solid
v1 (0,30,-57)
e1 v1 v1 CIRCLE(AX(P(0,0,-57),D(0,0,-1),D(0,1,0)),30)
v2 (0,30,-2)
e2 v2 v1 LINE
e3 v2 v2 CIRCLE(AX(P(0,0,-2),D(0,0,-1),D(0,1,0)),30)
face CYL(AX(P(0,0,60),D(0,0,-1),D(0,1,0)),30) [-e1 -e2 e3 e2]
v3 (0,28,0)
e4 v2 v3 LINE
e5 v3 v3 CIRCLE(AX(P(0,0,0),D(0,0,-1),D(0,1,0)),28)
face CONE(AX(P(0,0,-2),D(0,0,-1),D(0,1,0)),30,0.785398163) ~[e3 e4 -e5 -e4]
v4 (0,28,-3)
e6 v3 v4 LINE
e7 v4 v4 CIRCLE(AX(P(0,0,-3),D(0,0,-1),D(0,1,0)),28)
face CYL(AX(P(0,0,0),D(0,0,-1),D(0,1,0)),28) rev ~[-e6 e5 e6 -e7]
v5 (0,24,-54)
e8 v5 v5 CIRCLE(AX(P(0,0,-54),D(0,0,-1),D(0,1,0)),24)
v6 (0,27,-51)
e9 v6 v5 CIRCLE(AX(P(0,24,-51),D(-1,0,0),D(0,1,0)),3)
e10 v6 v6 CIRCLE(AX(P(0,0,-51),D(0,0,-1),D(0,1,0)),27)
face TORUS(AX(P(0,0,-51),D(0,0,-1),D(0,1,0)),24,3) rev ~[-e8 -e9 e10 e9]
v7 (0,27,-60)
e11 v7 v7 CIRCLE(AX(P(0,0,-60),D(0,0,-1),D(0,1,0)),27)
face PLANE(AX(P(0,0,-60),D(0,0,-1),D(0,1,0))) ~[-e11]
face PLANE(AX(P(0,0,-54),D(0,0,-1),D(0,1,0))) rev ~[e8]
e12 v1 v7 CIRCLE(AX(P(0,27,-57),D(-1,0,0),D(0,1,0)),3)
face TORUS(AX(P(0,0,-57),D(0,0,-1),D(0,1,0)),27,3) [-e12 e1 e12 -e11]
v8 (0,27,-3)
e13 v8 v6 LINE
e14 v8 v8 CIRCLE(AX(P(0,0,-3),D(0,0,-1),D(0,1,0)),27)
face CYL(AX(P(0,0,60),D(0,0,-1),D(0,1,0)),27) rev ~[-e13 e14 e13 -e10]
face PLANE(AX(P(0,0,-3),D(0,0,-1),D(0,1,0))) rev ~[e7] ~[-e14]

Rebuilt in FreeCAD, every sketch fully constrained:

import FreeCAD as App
import Part
import Sketcher
Q = App.Units.Quantity


def edges_at(feature, points):
    """Names of the edges that pass closest to the given points."""
    edges = feature.Shape.Edges
    near = lambda p: min(range(len(edges)), key=lambda i: edges[i].distToShape(Part.Vertex(*p))[0])
    return sorted({f"Edge{near(p) + 1}" for p in points})

doc = App.newDocument("Part")
body = doc.addObject("PartDesign::Body", "Body")

# Sketch on YZ plane
sketch1 = doc.addObject("Sketcher::SketchObject", "Sketch")
body.addObject(sketch1)
sketch1.AttachmentSupport = (doc.YZ_Plane, [""])
sketch1.MapMode = "FlatFace"
sketch1.addGeometry(Part.LineSegment(App.Vector(0, -54, 0), App.Vector(0, -60, 0)), False)
sketch1.addGeometry(Part.LineSegment(App.Vector(0, -60, 0), App.Vector(30, -60, 0)), False)
sketch1.addGeometry(Part.LineSegment(App.Vector(30, -60, 0), App.Vector(30, -2, 0)), False)
sketch1.addGeometry(Part.LineSegment(App.Vector(30, -2, 0), App.Vector(28, 0, 0)), False)
sketch1.addGeometry(Part.LineSegment(App.Vector(28, 0, 0), App.Vector(28, -3, 0)), False)
sketch1.addGeometry(Part.LineSegment(App.Vector(28, -3, 0), App.Vector(27, -3, 0)), False)
sketch1.addGeometry(Part.LineSegment(App.Vector(27, -3, 0), App.Vector(27, -54, 0)), False)
sketch1.addGeometry(Part.LineSegment(App.Vector(27, -54, 0), App.Vector(0, -54, 0)), False)
sketch1.addConstraint(Sketcher.Constraint("Coincident", 0, 2, 1, 1))
sketch1.addConstraint(Sketcher.Constraint("Coincident", 1, 2, 2, 1))
sketch1.addConstraint(Sketcher.Constraint("Coincident", 2, 2, 3, 1))
sketch1.addConstraint(Sketcher.Constraint("Coincident", 3, 2, 4, 1))
sketch1.addConstraint(Sketcher.Constraint("Coincident", 4, 2, 5, 1))
sketch1.addConstraint(Sketcher.Constraint("Coincident", 5, 2, 6, 1))
sketch1.addConstraint(Sketcher.Constraint("Coincident", 6, 2, 7, 1))
sketch1.addConstraint(Sketcher.Constraint("Coincident", 7, 2, 0, 1))
sketch1.addConstraint(Sketcher.Constraint("Vertical", 0))
sketch1.addConstraint(Sketcher.Constraint("Horizontal", 1))
sketch1.addConstraint(Sketcher.Constraint("Vertical", 2))
sketch1.addConstraint(Sketcher.Constraint("Vertical", 4))
sketch1.addConstraint(Sketcher.Constraint("Horizontal", 5))
sketch1.addConstraint(Sketcher.Constraint("Vertical", 6))
sketch1.addConstraint(Sketcher.Constraint("Horizontal", 7))
sketch1.addConstraint(Sketcher.Constraint("PointOnObject", 0, 2, -2))
sketch1.addConstraint(Sketcher.Constraint("PointOnObject", 3, 2, -1))
sketch1.addConstraint(Sketcher.Constraint("DistanceX", 1, 1, 1, 2, Q("30 mm")))
sketch1.addConstraint(Sketcher.Constraint("DistanceX", 5, 2, 5, 1, Q("1 mm")))
sketch1.addConstraint(Sketcher.Constraint("DistanceY", 0, 2, 0, 1, Q("6 mm")))
sketch1.addConstraint(Sketcher.Constraint("DistanceY", 4, 2, 4, 1, Q("3 mm")))
sketch1.addConstraint(Sketcher.Constraint("DistanceY", 2, 2, -1, 1, Q("2 mm")))
sketch1.addConstraint(Sketcher.Constraint("DistanceX", 3, 2, 2, 2, Q("2 mm")))
sketch1.addConstraint(Sketcher.Constraint("DistanceY", 2, 1, 2, 2, Q("58 mm")))
revolution = doc.addObject("PartDesign::Revolution", "Revolution")
body.addObject(revolution)
revolution.Profile = sketch1
revolution.ReferenceAxis = (sketch1, ["V_Axis"])
revolution.Angle = 360
doc.recompute()

fillet = doc.addObject("PartDesign::Fillet", "Fillet")
body.addObject(fillet)
fillet.Base = (revolution, edges_at(revolution, [(0, -30, -60)]))
fillet.Radius = 3
doc.recompute()

fillet2 = doc.addObject("PartDesign::Fillet", "Fillet001")
body.addObject(fillet2)
fillet2.Base = (fillet, edges_at(fillet, [(0, -27, -54)]))
fillet2.Radius = 3

doc.recompute()
